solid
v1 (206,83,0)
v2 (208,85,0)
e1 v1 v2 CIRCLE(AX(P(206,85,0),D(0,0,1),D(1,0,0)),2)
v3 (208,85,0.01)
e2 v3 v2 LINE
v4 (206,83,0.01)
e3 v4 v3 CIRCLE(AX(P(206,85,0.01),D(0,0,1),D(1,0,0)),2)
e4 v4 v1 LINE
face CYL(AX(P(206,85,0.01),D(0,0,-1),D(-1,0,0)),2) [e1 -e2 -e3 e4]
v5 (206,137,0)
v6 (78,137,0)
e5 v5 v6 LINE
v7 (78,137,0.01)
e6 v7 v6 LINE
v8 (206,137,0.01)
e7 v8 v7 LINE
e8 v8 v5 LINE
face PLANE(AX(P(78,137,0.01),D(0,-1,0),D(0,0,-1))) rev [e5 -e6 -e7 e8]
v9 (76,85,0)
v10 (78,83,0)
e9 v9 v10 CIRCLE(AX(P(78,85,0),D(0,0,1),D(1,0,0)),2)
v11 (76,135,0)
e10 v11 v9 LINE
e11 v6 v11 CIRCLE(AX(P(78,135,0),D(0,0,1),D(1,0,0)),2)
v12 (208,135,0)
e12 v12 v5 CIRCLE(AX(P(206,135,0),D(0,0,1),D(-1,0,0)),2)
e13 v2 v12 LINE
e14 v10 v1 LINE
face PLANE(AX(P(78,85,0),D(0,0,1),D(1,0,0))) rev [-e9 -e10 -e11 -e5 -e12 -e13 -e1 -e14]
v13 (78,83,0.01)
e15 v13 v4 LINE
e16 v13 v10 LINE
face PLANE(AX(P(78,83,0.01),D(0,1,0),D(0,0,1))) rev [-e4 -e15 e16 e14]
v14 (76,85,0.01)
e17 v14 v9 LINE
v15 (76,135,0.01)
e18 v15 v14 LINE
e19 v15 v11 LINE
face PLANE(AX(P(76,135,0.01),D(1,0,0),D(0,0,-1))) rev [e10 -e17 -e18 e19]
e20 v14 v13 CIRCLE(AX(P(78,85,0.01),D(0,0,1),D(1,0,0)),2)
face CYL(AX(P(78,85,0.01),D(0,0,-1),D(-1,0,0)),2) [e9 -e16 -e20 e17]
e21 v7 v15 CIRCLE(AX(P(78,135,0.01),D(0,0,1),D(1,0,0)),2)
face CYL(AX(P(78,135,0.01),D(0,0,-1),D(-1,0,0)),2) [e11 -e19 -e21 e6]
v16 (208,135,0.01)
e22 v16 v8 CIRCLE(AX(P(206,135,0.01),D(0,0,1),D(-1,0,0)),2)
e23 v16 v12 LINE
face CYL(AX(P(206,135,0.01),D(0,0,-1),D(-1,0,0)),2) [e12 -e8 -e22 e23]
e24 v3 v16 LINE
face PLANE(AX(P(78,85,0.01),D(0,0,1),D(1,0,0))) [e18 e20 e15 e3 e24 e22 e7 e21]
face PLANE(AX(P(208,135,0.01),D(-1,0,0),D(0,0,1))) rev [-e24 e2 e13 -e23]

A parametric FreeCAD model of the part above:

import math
import FreeCAD as App
import Part
import Sketcher

V = App.Vector

doc = App.newDocument("Part")
body = doc.addObject("PartDesign::Body", "Body")

# Sketch on XY plane
sketch1 = doc.addObject("Sketcher::SketchObject", "Sketch")
body.addObject(sketch1)
sketch1.AttachmentSupport = (doc.XY_Plane, [""])
sketch1.MapMode = "FlatFace"
sketch1.addGeometry([
    Part.LineSegment(V(206, 137, 0), V(78, 137, 0)),  # 0
    Part.ArcOfCircle(Part.Circle(V(78, 135, 0), V(0, 0, 1), 2), math.radians(90), math.radians(180)),  # 1
    Part.LineSegment(V(76, 135, 0), V(76, 85, 0)),  # 2
    Part.ArcOfCircle(Part.Circle(V(78, 85, 0), V(0, 0, 1), 2), math.radians(-180), math.radians(-90)),  # 3
    Part.LineSegment(V(78, 83, 0), V(206, 83, 0)),  # 4
    Part.ArcOfCircle(Part.Circle(V(206, 85, 0), V(0, 0, 1), 2), math.radians(-90), math.radians(0)),  # 5
    Part.LineSegment(V(208, 85, 0), V(208, 135, 0)),  # 6
    Part.ArcOfCircle(Part.Circle(V(206, 135, 0), V(0, 0, 1), 2), math.radians(0), math.radians(90)),  # 7
], False)
sketch1.addConstraint([
    Sketcher.Constraint("Tangent", 0, 2, 1, 1),
    Sketcher.Constraint("Tangent", 1, 2, 2, 1),
    Sketcher.Constraint("Tangent", 2, 2, 3, 1),
    Sketcher.Constraint("Tangent", 3, 2, 4, 1),
    Sketcher.Constraint("Tangent", 4, 2, 5, 1),
    Sketcher.Constraint("Tangent", 5, 2, 6, 1),
    Sketcher.Constraint("Tangent", 6, 2, 7, 1),
    Sketcher.Constraint("Tangent", 7, 2, 0, 1),
    Sketcher.Constraint("Horizontal", 0),
    Sketcher.Constraint("Vertical", 2),
    Sketcher.Constraint("Horizontal", 4),
    Sketcher.Constraint("Vertical", 6),
    Sketcher.Constraint("Equal", 1, 3),
    Sketcher.Constraint("Equal", 3, 5),
    Sketcher.Constraint("Equal", 5, 7),
    Sketcher.Constraint("Radius", 1, 2.0),
    Sketcher.Constraint("DistanceX", 0, 2, 0, 1, 128.0),
    Sketcher.Constraint("DistanceY", 2, 2, 2, 1, 50.0),
    Sketcher.Constraint("DistanceX", -1, 1, 1, 3, 78.0),
    Sketcher.Constraint("DistanceY", -1, 1, 1, 3, 135.0),
])
pad1 = doc.addObject("PartDesign::Pad", "Pad")
body.addObject(pad1)
pad1.Profile = sketch1
pad1.Length = 0.01

doc.recompute()
